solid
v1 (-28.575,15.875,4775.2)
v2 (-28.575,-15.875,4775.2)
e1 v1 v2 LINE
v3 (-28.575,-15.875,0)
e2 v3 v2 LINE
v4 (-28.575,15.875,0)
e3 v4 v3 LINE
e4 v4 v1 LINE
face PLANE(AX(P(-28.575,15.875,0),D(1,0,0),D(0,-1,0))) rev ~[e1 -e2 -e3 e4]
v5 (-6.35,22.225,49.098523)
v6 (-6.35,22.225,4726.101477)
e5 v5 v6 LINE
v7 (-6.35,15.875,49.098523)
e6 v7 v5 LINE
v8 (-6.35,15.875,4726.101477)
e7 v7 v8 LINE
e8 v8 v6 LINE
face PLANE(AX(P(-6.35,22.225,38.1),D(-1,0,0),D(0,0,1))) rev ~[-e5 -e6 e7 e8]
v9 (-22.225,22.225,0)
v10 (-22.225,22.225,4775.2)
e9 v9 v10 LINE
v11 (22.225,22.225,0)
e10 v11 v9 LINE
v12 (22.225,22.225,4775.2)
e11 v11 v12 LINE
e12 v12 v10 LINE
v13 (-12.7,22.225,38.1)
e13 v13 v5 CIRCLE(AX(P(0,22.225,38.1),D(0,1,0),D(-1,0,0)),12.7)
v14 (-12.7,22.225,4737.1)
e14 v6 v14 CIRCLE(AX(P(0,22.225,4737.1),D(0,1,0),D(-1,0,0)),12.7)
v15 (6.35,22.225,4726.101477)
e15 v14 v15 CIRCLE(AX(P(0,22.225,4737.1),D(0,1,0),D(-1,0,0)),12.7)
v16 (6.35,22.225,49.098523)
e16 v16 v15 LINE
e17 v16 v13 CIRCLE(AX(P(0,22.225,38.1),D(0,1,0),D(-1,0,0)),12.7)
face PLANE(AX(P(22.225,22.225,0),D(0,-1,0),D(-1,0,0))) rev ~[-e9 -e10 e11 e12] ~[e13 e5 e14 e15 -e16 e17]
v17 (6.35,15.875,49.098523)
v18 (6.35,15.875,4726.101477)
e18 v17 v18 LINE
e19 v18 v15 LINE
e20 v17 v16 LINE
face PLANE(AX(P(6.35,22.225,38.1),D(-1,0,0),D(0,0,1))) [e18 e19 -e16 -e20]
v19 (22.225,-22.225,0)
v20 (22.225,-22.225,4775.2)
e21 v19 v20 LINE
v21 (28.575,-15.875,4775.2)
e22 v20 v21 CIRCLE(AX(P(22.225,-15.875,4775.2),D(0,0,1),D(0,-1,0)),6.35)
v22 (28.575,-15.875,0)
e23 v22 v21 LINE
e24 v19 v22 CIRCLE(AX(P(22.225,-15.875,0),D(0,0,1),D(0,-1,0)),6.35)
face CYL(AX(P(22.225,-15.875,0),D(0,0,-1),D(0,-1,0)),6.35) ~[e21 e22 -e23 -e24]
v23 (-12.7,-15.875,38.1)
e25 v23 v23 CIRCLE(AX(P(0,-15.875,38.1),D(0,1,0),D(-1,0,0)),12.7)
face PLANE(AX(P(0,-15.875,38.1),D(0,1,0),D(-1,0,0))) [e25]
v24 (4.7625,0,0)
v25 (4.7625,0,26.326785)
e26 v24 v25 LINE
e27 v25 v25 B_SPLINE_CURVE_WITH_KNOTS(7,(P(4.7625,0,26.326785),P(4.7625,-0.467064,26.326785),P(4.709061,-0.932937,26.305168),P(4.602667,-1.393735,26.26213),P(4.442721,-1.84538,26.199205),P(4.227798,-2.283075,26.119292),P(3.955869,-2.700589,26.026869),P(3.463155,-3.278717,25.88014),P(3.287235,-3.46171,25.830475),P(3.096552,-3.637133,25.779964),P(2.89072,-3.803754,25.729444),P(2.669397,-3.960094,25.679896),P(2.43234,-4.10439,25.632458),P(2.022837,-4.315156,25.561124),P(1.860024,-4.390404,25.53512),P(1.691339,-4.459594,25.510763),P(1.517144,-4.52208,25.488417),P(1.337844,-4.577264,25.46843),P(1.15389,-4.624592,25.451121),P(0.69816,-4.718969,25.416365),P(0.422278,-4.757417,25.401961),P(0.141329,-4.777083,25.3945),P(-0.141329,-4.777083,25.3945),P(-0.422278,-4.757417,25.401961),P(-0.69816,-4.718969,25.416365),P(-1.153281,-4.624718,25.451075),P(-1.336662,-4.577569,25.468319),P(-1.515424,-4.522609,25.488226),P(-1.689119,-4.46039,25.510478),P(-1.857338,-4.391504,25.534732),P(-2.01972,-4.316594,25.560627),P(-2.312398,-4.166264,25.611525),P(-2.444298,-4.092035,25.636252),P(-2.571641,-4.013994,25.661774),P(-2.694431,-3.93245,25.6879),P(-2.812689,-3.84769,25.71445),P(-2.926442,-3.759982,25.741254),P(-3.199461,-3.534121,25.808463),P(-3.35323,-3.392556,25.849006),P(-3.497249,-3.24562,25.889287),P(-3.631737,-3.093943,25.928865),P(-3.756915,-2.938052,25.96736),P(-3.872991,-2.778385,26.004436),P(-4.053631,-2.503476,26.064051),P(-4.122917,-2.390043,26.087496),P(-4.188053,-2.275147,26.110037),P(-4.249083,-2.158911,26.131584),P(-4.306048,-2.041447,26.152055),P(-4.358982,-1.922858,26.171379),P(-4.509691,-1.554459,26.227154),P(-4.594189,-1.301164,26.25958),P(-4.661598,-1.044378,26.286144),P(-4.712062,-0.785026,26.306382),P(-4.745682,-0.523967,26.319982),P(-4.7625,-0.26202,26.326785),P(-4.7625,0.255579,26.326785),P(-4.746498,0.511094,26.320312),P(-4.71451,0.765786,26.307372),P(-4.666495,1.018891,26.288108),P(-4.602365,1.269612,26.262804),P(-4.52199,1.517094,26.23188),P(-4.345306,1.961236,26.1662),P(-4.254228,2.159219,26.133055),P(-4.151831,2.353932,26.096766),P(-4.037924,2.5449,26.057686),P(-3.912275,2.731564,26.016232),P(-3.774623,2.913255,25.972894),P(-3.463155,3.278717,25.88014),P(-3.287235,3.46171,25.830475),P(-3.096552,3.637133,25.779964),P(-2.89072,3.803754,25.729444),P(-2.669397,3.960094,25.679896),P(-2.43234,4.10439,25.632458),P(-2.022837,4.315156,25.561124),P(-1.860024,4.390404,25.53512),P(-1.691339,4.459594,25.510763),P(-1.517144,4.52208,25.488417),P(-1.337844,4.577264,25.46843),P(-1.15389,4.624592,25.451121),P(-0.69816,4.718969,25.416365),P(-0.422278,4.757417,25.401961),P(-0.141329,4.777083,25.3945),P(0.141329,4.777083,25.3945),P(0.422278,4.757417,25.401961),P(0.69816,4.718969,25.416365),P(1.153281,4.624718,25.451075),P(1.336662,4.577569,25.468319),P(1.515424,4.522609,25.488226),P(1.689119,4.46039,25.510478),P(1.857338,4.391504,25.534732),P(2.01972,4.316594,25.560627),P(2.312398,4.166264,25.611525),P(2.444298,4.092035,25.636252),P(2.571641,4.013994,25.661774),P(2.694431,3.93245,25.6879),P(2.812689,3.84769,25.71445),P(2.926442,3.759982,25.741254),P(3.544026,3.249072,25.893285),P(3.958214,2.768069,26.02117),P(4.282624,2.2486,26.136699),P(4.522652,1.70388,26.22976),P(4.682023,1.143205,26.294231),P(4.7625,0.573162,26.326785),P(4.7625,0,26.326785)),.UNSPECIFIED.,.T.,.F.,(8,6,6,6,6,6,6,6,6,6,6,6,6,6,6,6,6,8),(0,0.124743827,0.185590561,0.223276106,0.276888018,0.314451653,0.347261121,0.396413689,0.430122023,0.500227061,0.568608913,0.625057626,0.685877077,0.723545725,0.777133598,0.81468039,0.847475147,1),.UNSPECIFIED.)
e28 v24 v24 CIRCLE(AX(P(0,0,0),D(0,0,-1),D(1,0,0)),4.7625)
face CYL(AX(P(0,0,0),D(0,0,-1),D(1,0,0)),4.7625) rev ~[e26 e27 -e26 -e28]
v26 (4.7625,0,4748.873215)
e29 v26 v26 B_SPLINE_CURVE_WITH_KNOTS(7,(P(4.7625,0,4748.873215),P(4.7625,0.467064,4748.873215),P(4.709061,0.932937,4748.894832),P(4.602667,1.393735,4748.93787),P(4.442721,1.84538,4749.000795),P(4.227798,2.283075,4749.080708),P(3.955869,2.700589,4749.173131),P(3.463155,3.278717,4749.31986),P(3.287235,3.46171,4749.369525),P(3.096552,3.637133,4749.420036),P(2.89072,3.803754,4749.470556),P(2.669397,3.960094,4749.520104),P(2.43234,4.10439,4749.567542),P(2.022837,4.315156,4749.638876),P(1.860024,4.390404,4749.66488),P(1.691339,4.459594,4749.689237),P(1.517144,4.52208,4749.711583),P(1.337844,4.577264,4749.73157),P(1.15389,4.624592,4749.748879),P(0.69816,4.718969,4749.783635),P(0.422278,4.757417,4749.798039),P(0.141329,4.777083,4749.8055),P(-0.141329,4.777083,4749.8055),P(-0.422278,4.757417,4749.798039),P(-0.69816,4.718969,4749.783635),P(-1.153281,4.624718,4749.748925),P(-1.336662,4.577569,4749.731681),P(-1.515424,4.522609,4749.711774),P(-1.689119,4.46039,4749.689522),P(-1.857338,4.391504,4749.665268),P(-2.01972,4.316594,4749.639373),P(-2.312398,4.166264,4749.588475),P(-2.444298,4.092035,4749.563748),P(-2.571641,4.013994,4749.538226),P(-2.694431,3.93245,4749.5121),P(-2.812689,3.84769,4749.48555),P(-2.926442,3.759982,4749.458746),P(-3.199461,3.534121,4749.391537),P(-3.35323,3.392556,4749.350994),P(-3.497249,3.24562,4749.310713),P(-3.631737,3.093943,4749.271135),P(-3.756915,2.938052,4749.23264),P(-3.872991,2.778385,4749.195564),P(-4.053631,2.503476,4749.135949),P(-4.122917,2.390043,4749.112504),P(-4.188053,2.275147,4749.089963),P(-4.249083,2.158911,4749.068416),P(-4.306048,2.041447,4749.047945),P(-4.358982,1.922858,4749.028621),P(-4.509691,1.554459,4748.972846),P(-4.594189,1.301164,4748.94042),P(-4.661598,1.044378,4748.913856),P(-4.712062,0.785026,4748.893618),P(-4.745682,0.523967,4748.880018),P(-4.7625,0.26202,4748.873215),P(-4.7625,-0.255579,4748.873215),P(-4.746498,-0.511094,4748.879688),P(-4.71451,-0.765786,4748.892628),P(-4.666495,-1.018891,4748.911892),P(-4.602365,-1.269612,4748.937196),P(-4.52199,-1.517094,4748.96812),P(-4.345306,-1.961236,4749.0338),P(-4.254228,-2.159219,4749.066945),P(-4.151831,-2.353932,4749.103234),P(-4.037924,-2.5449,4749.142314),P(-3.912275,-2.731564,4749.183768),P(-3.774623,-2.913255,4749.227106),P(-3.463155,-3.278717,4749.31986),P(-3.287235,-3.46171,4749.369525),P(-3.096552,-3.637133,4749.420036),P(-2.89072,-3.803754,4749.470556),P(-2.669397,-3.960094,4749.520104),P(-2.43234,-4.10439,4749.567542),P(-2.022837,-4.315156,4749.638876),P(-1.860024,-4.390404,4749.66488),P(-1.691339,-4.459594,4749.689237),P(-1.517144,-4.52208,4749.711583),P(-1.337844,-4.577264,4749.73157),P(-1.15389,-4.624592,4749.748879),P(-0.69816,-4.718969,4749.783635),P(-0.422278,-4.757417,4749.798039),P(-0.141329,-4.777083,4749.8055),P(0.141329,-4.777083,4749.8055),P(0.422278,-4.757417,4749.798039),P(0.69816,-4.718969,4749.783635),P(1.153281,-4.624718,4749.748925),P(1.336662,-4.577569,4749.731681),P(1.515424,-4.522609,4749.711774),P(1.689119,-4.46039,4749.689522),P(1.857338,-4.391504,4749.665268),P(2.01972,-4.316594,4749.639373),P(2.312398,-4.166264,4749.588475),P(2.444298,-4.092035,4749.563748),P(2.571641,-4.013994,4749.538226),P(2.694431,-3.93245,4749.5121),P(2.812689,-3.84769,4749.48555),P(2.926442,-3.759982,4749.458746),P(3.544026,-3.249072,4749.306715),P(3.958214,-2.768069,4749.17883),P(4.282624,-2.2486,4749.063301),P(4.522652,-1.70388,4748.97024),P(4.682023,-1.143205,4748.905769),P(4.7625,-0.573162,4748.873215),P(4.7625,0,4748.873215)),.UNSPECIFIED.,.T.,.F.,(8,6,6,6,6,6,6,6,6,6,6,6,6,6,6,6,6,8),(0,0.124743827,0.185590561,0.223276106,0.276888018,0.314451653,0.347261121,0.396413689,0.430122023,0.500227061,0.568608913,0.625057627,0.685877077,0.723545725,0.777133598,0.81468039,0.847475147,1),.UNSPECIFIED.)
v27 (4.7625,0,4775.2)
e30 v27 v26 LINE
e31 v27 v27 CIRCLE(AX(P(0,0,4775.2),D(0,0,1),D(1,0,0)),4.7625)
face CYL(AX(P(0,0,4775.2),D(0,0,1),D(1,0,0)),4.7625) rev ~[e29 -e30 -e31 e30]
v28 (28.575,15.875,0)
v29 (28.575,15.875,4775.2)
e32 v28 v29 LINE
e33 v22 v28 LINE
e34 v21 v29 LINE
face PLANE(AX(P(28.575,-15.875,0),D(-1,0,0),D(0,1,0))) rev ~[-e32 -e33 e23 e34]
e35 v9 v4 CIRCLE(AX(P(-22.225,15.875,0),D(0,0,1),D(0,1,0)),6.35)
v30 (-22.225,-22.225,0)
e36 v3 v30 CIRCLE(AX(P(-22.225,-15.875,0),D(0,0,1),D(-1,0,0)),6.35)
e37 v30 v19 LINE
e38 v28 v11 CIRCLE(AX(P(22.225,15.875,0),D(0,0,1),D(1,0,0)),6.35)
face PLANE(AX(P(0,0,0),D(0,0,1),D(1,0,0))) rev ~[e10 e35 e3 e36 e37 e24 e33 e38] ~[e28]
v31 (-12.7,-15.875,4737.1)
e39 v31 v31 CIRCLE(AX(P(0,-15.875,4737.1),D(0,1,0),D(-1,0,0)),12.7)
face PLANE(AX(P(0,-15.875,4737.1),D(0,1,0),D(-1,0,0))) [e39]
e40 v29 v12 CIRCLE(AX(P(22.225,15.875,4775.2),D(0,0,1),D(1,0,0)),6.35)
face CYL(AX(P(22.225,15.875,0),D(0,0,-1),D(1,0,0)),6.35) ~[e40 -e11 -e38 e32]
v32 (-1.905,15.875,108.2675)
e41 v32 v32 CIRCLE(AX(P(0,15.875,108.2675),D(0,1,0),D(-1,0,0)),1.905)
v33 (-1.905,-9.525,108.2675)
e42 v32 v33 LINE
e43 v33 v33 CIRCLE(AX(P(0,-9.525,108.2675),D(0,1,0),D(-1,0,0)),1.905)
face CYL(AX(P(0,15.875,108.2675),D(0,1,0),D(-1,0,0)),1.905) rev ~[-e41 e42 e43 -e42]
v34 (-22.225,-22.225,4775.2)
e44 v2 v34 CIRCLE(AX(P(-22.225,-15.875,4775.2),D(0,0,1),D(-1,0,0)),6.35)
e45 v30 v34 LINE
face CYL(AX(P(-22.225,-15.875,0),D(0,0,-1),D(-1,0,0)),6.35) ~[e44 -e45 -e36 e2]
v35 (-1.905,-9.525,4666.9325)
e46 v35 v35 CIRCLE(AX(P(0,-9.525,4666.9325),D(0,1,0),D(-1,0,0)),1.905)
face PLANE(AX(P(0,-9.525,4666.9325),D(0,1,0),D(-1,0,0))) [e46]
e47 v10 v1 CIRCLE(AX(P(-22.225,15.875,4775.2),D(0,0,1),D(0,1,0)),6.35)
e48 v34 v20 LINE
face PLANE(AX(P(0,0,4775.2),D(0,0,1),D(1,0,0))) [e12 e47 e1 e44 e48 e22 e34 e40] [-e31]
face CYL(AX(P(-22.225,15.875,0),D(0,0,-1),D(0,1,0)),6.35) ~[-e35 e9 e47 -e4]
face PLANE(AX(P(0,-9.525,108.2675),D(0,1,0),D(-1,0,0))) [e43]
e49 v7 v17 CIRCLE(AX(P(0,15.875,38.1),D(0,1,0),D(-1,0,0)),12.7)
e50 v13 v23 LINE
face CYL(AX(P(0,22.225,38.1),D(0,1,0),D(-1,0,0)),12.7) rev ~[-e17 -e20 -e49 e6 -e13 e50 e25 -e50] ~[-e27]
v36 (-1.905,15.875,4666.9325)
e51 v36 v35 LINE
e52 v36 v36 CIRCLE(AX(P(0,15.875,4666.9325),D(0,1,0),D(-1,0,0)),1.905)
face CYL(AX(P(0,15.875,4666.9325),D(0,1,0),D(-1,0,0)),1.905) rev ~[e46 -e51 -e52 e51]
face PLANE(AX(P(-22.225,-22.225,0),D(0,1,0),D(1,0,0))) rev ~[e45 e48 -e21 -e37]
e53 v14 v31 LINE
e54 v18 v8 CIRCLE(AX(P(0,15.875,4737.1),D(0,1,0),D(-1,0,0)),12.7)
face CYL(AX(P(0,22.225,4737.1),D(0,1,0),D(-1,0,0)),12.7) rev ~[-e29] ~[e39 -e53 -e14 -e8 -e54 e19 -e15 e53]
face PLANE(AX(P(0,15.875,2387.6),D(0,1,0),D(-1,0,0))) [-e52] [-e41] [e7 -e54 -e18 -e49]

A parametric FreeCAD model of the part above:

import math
import FreeCAD as App
import Part
import Sketcher

V = App.Vector
Q = App.Units.Quantity


def add_polygon(sketch, points):
    """Adds a closed chain of lines whose ends are joined by coincident constraints."""
    first, n = sketch.GeometryCount, len(points)
    for a, b in zip(points, points[1:] + points[:1]):
        sketch.addGeometry(Part.LineSegment(App.Vector(*a, 0), App.Vector(*b, 0)), False)
    for i in range(n):
        sketch.addConstraint(Sketcher.Constraint("Coincident", first + i, 2, first + (i + 1) % n, 1))

doc = App.newDocument("Part")
body = doc.addObject("PartDesign::Body", "Body")

# Sketch on XY plane
sketch1 = doc.addObject("Sketcher::SketchObject", "Sketch")
body.addObject(sketch1)
sketch1.AttachmentSupport = (doc.XY_Plane, [""])
sketch1.MapMode = "FlatFace"
sketch1.addGeometry([
    Part.LineSegment(V(-22.225, -22.225, 0), V(22.225, -22.225, 0)),  # 0
    Part.ArcOfCircle(Part.Circle(V(22.225, -15.875, 0), V(0, 0, 1), 6.35), math.radians(-90), math.radians(0)),  # 1
    Part.LineSegment(V(28.575, -15.875, 0), V(28.575, 15.875, 0)),  # 2
    Part.ArcOfCircle(Part.Circle(V(22.225, 15.875, 0), V(0, 0, 1), 6.35), math.radians(0), math.radians(90)),  # 3
    Part.LineSegment(V(22.225, 22.225, 0), V(-22.225, 22.225, 0)),  # 4
    Part.ArcOfCircle(Part.Circle(V(-22.225, 15.875, 0), V(0, 0, 1), 6.35), math.radians(90), math.radians(180)),  # 5
    Part.LineSegment(V(-28.575, 15.875, 0), V(-28.575, -15.875, 0)),  # 6
    Part.ArcOfCircle(Part.Circle(V(-22.225, -15.875, 0), V(0, 0, 1), 6.35), math.radians(180), math.radians(270)),  # 7
], False)
sketch1.addConstraint([
    Sketcher.Constraint("Tangent", 0, 2, 1, 1),
    Sketcher.Constraint("Tangent", 1, 2, 2, 1),
    Sketcher.Constraint("Tangent", 2, 2, 3, 1),
    Sketcher.Constraint("Tangent", 3, 2, 4, 1),
    Sketcher.Constraint("Tangent", 4, 2, 5, 1),
    Sketcher.Constraint("Tangent", 5, 2, 6, 1),
    Sketcher.Constraint("Tangent", 6, 2, 7, 1),
    Sketcher.Constraint("Tangent", 7, 2, 0, 1),
    Sketcher.Constraint("Horizontal", 0),
    Sketcher.Constraint("Vertical", 2),
    Sketcher.Constraint("Horizontal", 4),
    Sketcher.Constraint("Vertical", 6),
    Sketcher.Constraint("Equal", 1, 3),
    Sketcher.Constraint("Equal", 3, 5),
    Sketcher.Constraint("Equal", 5, 7),
    Sketcher.Constraint("Symmetric", 1, 3, 5, 3, -1, 1),
    Sketcher.Constraint("Radius", 1, Q("0.25 in")),
    Sketcher.Constraint("DistanceX", 7, 3, 1, 2, Q("2 in")),
    Sketcher.Constraint("DistanceY", 2, 1, 2, 2, Q("1.25 in")),
])
pad1 = doc.addObject("PartDesign::Pad", "Pad")
body.addObject(pad1)
pad1.Profile = sketch1
pad1.Length = Q("188 in")

# Sketch on XZ plane
sketch2 = doc.addObject("Sketcher::SketchObject", "Sketch001")
body.addObject(sketch2)
sketch2.AttachmentSupport = (doc.XZ_Plane, [""])
sketch2.MapMode = "FlatFace"
sketch2.AttachmentOffset = App.Placement(V(0, 0, -0.875 * 25.4), App.Rotation())
sketch2.addGeometry([
    Part.Circle(V(0, 38.1, 0), V(0, 0, 1), 12.7),
    Part.Circle(V(0, 4737.1, 0), V(0, 0, 1), 12.7),
], False)
sketch2.addConstraint([
    Sketcher.Constraint("Equal", 0, 1),
    Sketcher.Constraint("PointOnObject", 0, 3, -2),
    Sketcher.Constraint("PointOnObject", 1, 3, -2),
    Sketcher.Constraint("Diameter", 0, Q("1 in")),
    Sketcher.Constraint("DistanceY", 0, 3, 1, 3, Q("185 in")),
    Sketcher.Constraint("DistanceY", -1, 1, 0, 3, Q("1.5 in")),
])
pocket1 = doc.addObject("PartDesign::Pocket", "Pocket")
body.addObject(pocket1)
pocket1.Profile = sketch2
pocket1.Length = Q("1.5 in")
pocket1.Reversed = True

# Sketch on XZ plane
sketch3 = doc.addObject("Sketcher::SketchObject", "Sketch002")
body.addObject(sketch3)
sketch3.AttachmentSupport = (doc.XZ_Plane, [""])
sketch3.MapMode = "FlatFace"
sketch3.AttachmentOffset = App.Placement(V(0, 0, -0.875 * 25.4), App.Rotation())
add_polygon(sketch3, [(6.35, 4737.1), (6.35, 38.1), (-6.35, 38.1), (-6.35, 4737.1)])  # lines 0-3
sketch3.addConstraint([
    Sketcher.Constraint("Vertical", 0),
    Sketcher.Constraint("Horizontal", 1),
    Sketcher.Constraint("Vertical", 2),
    Sketcher.Constraint("Horizontal", 3),
    Sketcher.Constraint("DistanceY", 0, 2, 0, 1, Q("185 in")),
    Sketcher.Constraint("DistanceX", 1, 2, 1, 1, Q("0.5 in")),
    Sketcher.Constraint("DistanceY", -1, 1, 0, 2, Q("1.5 in")),
    Sketcher.Constraint("DistanceX", -1, 1, 0, 2, Q("0.25 in")),
])
pocket2 = doc.addObject("PartDesign::Pocket", "Pocket001")
body.addObject(pocket2)
pocket2.Profile = sketch3
pocket2.Length = Q("0.25 in")
pocket2.Reversed = True

# Sketch on XY plane
sketch4 = doc.addObject("Sketcher::SketchObject", "Sketch003")
body.addObject(sketch4)
sketch4.AttachmentSupport = (doc.XY_Plane, [""])
sketch4.MapMode = "FlatFace"
sketch4.AttachmentOffset = App.Placement(V(0, 0, 188 * 25.4), App.Rotation())
sketch4.addGeometry(Part.Circle(V(0, 0, 0), V(0, 0, 1), 4.7625), False)
sketch4.addConstraint([
    Sketcher.Constraint("Coincident", 0, 3, -1, 1),
    Sketcher.Constraint("Diameter", 0, Q("0.375 in")),
])
pocket3 = doc.addObject("PartDesign::Pocket", "Pocket002")
body.addObject(pocket3)
pocket3.Profile = sketch4
pocket3.Length = Q("1.5 in")

# Sketch on XY plane
sketch5 = doc.addObject("Sketcher::SketchObject", "Sketch004")
body.addObject(sketch5)
sketch5.AttachmentSupport = (doc.XY_Plane, [""])
sketch5.MapMode = "FlatFace"
sketch5.addGeometry(Part.Circle(V(0, 0, 0), V(0, 0, 1), 4.7625), False)
sketch5.addConstraint([
    Sketcher.Constraint("Coincident", 0, 3, -1, 1),
    Sketcher.Constraint("Diameter", 0, Q("0.375 in")),
])
pocket4 = doc.addObject("PartDesign::Pocket", "Pocket003")
body.addObject(pocket4)
pocket4.Profile = sketch5
pocket4.Length = Q("1.5 in")
pocket4.Reversed = True

# Sketch on XZ plane
sketch6 = doc.addObject("Sketcher::SketchObject", "Sketch005")
body.addObject(sketch6)
sketch6.AttachmentSupport = (doc.XZ_Plane, [""])
sketch6.MapMode = "FlatFace"
sketch6.AttachmentOffset = App.Placement(V(0, 0, -0.625 * 25.4), App.Rotation())
sketch6.addGeometry([
    Part.Circle(V(0, 4666.9325, 0), V(0, 0, 1), 1.905),
    Part.Circle(V(0, 108.2675, 0), V(0, 0, 1), 1.905),
], False)
sketch6.addConstraint([
    Sketcher.Constraint("Equal", 0, 1),
    Sketcher.Constraint("PointOnObject", 0, 3, -2),
    Sketcher.Constraint("PointOnObject", 1, 3, -2),
    Sketcher.Constraint("Diameter", 0, Q("0.15 in")),
    Sketcher.Constraint("DistanceY", 1, 3, 0, 3, Q("179.475 in")),
    Sketcher.Constraint("DistanceY", -1, 1, 0, 3, Q("183.7375 in")),
])
pocket5 = doc.addObject("PartDesign::Pocket", "Pocket004")
body.addObject(pocket5)
pocket5.Profile = sketch6
pocket5.Length = Q("1 in")
pocket5.Reversed = True

doc.recompute()
